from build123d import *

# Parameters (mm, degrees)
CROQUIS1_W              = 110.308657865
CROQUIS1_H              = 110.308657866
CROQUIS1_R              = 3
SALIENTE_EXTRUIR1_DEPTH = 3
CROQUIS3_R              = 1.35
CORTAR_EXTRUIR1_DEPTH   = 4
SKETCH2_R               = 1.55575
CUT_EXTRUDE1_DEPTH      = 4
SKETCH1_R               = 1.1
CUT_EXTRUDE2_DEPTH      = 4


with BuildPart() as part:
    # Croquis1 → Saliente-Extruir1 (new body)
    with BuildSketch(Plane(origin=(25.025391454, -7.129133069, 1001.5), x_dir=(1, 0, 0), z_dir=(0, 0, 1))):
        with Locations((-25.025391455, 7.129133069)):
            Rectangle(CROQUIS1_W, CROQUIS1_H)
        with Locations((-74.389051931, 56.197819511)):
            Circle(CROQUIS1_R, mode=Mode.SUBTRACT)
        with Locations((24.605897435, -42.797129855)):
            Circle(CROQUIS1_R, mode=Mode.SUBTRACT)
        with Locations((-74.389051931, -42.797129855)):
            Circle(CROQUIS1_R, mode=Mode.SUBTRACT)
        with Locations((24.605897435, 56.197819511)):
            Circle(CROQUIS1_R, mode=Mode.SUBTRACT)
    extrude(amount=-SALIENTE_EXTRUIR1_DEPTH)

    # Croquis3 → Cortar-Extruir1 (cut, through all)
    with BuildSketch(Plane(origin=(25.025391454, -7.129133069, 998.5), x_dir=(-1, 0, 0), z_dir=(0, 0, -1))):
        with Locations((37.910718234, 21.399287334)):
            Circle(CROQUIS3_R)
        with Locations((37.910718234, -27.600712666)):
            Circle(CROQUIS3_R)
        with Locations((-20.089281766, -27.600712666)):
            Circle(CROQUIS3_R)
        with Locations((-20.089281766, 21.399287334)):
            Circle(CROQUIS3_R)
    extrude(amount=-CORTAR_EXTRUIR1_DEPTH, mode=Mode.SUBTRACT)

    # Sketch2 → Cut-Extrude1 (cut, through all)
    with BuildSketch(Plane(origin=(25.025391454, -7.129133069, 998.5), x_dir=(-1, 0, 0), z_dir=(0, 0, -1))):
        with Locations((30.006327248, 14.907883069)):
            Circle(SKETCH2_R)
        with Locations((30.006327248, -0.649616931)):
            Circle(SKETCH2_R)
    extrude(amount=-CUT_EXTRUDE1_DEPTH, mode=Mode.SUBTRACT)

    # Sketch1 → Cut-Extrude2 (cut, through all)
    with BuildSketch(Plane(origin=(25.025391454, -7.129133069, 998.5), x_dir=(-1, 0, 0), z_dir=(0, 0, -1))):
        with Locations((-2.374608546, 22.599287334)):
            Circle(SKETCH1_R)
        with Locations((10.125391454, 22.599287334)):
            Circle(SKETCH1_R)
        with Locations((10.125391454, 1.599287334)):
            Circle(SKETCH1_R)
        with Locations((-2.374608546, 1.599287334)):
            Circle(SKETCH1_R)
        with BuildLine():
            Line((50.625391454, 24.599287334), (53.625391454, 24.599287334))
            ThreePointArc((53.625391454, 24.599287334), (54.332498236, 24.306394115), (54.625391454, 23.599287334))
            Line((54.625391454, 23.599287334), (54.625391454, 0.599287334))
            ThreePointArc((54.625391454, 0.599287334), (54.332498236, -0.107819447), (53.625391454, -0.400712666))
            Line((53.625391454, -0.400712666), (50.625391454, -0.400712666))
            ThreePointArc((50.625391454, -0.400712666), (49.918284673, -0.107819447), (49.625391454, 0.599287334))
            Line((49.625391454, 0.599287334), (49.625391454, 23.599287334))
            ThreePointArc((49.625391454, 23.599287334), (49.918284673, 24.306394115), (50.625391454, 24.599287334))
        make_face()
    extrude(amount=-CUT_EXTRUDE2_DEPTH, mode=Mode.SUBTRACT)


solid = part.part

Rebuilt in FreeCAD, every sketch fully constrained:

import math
import FreeCAD as App
import Part
import Sketcher

V = App.Vector
Q = App.Units.Quantity

doc = App.newDocument("Part")
body = doc.addObject("PartDesign::Body", "Body")

# Sketch on XY plane
sketch1 = body.newObject("Sketcher::SketchObject", "Sketch")
sketch1.AttachmentSupport = (doc.getObject("XY_Plane"), [""])
sketch1.MapMode = "FlatFace"
sketch1.AttachmentOffset = App.Placement(V(0, 0, 1001.5), App.Rotation())
sketch1.addGeometry([
    Part.LineSegment(V(-55.2, 55.2, 0), V(-55.2, -55.2, 0)),  # 0
    Part.LineSegment(V(-55.2, -55.2, 0), V(55.2, -55.2, 0)),  # 1
    Part.LineSegment(V(55.2, -55.2, 0), V(55.2, 55.2, 0)),  # 2
    Part.LineSegment(V(55.2, 55.2, 0), V(-55.2, 55.2, 0)),  # 3
    Part.Circle(V(-49.4, -49.9, 0), V(0, 0, 1), 3),  # 4
    Part.Circle(V(49.6, -49.9, 0), V(0, 0, 1), 3),  # 5
    Part.Circle(V(-49.4, 49.1, 0), V(0, 0, 1), 3),  # 6
    Part.Circle(V(49.6, 49.1, 0), V(0, 0, 1), 3),  # 7
], False)
sketch1.addConstraint([
    Sketcher.Constraint("Coincident", 0, 2, 1, 1),
    Sketcher.Constraint("Coincident", 1, 2, 2, 1),
    Sketcher.Constraint("Coincident", 2, 2, 3, 1),
    Sketcher.Constraint("Coincident", 3, 2, 0, 1),
    Sketcher.Constraint("Vertical", 0),
    Sketcher.Constraint("Horizontal", 1),
    Sketcher.Constraint("Vertical", 2),
    Sketcher.Constraint("Horizontal", 3),
    Sketcher.Constraint("Equal", 4, 5),
    Sketcher.Constraint("Equal", 5, 6),
    Sketcher.Constraint("Equal", 6, 7),
    Sketcher.Constraint("Symmetric", 0, 2, 2, 2, -1, 1),
    Sketcher.Constraint("Horizontal", 4, 3, 5, 3),
    Sketcher.Constraint("Horizontal", 6, 3, 7, 3),
    Sketcher.Constraint("Vertical", 4, 3, 6, 3),
    Sketcher.Constraint("Vertical", 5, 3, 7, 3),
    Sketcher.Constraint("Equal", 3, 0),
    Sketcher.Constraint("Diameter", 4, Q("6 mm")),
    Sketcher.Constraint("DistanceX", 1, 1, 1, 2, Q("110.308658 mm")),
    Sketcher.Constraint("DistanceX", 4, 3, -1, 1, Q("49.36366 mm")),
    Sketcher.Constraint("DistanceX", -1, 1, 5, 3, Q("49.631289 mm")),
    Sketcher.Constraint("DistanceY", 4, 3, 6, 3, Q("98.994949 mm")),
    Sketcher.Constraint("DistanceY", 5, 3, 2, 2, Q("105.080592 mm")),
])
pad1 = body.newObject("PartDesign::Pad", "Pad")
pad1.Profile = sketch1
pad1.Length = 3
pad1.Reversed = True

# Sketch on XY plane
sketch2 = body.newObject("Sketcher::SketchObject", "Sketch001")
sketch2.AttachmentSupport = (doc.getObject("XY_Plane"), [""])
sketch2.MapMode = "FlatFace"
sketch2.AttachmentOffset = App.Placement(V(0, 0, 998.5), App.Rotation())
sketch2.addGeometry([
    Part.Circle(V(-12.9, 14.3, 0), V(0, 0, 1), 1.4),
    Part.Circle(V(-12.9, -34.7, 0), V(0, 0, 1), 1.4),
    Part.Circle(V(45.1, -34.7, 0), V(0, 0, 1), 1.4),
    Part.Circle(V(45.1, 14.3, 0), V(0, 0, 1), 1.4),
], False)
sketch2.addConstraint([
    Sketcher.Constraint("Equal", 0, 1),
    Sketcher.Constraint("Equal", 1, 2),
    Sketcher.Constraint("Equal", 2, 3),
    Sketcher.Constraint("Horizontal", 1, 3, 2, 3),
    Sketcher.Constraint("Horizontal", 0, 3, 3, 3),
    Sketcher.Constraint("Vertical", 0, 3, 1, 3),
    Sketcher.Constraint("Vertical", 2, 3, 3, 3),
    Sketcher.Constraint("Diameter", 0, Q("2.7 mm")),
    Sketcher.Constraint("DistanceY", 1, 3, 0, 3, Q("49 mm")),
    Sketcher.Constraint("DistanceX", 1, 3, 2, 3, Q("58 mm")),
    Sketcher.Constraint("DistanceX", 0, 3, -1, 1, Q("12.885327 mm")),
    Sketcher.Constraint("DistanceY", -1, 1, 0, 3, Q("14.270154 mm")),
])
pocket1 = body.newObject("PartDesign::Pocket", "Pocket")
pocket1.Profile = sketch2
pocket1.Type = "ThroughAll"
pocket1.Reversed = True

# Sketch on XY plane
sketch3 = body.newObject("Sketcher::SketchObject", "Sketch002")
sketch3.AttachmentSupport = (doc.getObject("XY_Plane"), [""])
sketch3.MapMode = "FlatFace"
sketch3.AttachmentOffset = App.Placement(V(0, 0, 998.5), App.Rotation())
sketch3.addGeometry([
    Part.Circle(V(-5, 7.8, 0), V(0, 0, 1), 1.6),
    Part.Circle(V(-5, -7.8, 0), V(0, 0, 1), 1.6),
], False)
sketch3.addConstraint([
    Sketcher.Constraint("Equal", 0, 1),
    Sketcher.Constraint("Symmetric", 0, 3, 1, 3, -1),
    Sketcher.Constraint("Diameter", 0, Q("3.1115 mm")),
    Sketcher.Constraint("DistanceY", 1, 3, 0, 3, Q("15.5575 mm")),
    Sketcher.Constraint("DistanceX", 0, 3, -1, 1, Q("4.980936 mm")),
])
pocket2 = body.newObject("PartDesign::Pocket", "Pocket001")
pocket2.Profile = sketch3
pocket2.Type = "ThroughAll"
pocket2.Reversed = True

# Sketch on XY plane
sketch4 = body.newObject("Sketcher::SketchObject", "Sketch003")
sketch4.AttachmentSupport = (doc.getObject("XY_Plane"), [""])
sketch4.MapMode = "FlatFace"
sketch4.AttachmentOffset = App.Placement(V(0, 0, 998.5), App.Rotation())
sketch4.addGeometry([
    Part.Circle(V(27.4, 15.5, 0), V(0, 0, 1), 1.1),  # 0
    Part.Circle(V(14.9, 15.5, 0), V(0, 0, 1), 1.1),  # 1
    Part.Circle(V(14.9, -5.5, 0), V(0, 0, 1), 1.1),  # 2
    Part.Circle(V(27.4, -5.5, 0), V(0, 0, 1), 1.1),  # 3
    Part.LineSegment(V(-28.6, 17.5, 0), V(-25.6, 17.5, 0)),  # 4
    Part.ArcOfCircle(Part.Circle(V(-25.6, 16.5, 0), V(0, 0, 1), 1), math.radians(0), math.radians(90)),  # 5
    Part.LineSegment(V(-24.6, 16.5, 0), V(-24.6, -6.5, 0)),  # 6
    Part.ArcOfCircle(Part.Circle(V(-25.6, -6.5, 0), V(0, 0, 1), 1), math.radians(-90), math.radians(0)),  # 7
    Part.LineSegment(V(-25.6, -7.5, 0), V(-28.6, -7.5, 0)),  # 8
    Part.ArcOfCircle(Part.Circle(V(-28.6, -6.5, 0), V(0, 0, 1), 1), math.radians(180), math.radians(270)),  # 9
    Part.LineSegment(V(-29.6, -6.5, 0), V(-29.6, 16.5, 0)),  # 10
    Part.ArcOfCircle(Part.Circle(V(-28.6, 16.5, 0), V(0, 0, 1), 1), math.radians(90), math.radians(180)),  # 11
], False)
sketch4.addConstraint([
    Sketcher.Constraint("Tangent", 4, 2, 5, 2),
    Sketcher.Constraint("Tangent", 5, 1, 6, 1),
    Sketcher.Constraint("Tangent", 6, 2, 7, 2),
    Sketcher.Constraint("Tangent", 7, 1, 8, 1),
    Sketcher.Constraint("Tangent", 8, 2, 9, 2),
    Sketcher.Constraint("Tangent", 9, 1, 10, 1),
    Sketcher.Constraint("Tangent", 10, 2, 11, 2),
    Sketcher.Constraint("Tangent", 11, 1, 4, 1),
    Sketcher.Constraint("Horizontal", 4),
    Sketcher.Constraint("Vertical", 6),
    Sketcher.Constraint("Horizontal", 8),
    Sketcher.Constraint("Vertical", 10),
    Sketcher.Constraint("Equal", 0, 1),
    Sketcher.Constraint("Equal", 1, 2),
    Sketcher.Constraint("Equal", 2, 3),
    Sketcher.Constraint("Equal", 5, 7),
    Sketcher.Constraint("Equal", 7, 9),
    Sketcher.Constraint("Equal", 9, 11),
    Sketcher.Constraint("Horizontal", 0, 3, 1, 3),
    Sketcher.Constraint("Horizontal", 2, 3, 3, 3),
    Sketcher.Constraint("Vertical", 1, 3, 2, 3),
    Sketcher.Constraint("Vertical", 0, 3, 3, 3),
    Sketcher.Constraint("Radius", 5, Q("1 mm")),
    Sketcher.Constraint("Diameter", 0, Q("2.2 mm")),
    Sketcher.Constraint("DistanceX", 4, 1, 4, 2, Q("3 mm")),
    Sketcher.Constraint("DistanceY", 6, 2, 6, 1, Q("23 mm")),
    Sketcher.Constraint("DistanceY", 2, 3, 1, 3, Q("21 mm")),
    Sketcher.Constraint("DistanceY", 1, 3, 5, 3, Q("1 mm")),
    Sketcher.Constraint("DistanceX", 5, 3, 0, 3, Q("53 mm")),
    Sketcher.Constraint("DistanceX", -1, 1, 0, 3, Q("27.4 mm")),
    Sketcher.Constraint("DistanceX", -1, 1, 1, 3, Q("14.9 mm")),
    Sketcher.Constraint("DistanceY", -1, 1, 0, 3, Q("15.470154 mm")),
])
pocket3 = body.newObject("PartDesign::Pocket", "Pocket002")
pocket3.Profile = sketch4
pocket3.Type = "ThroughAll"
pocket3.Reversed = True

doc.recompute()
